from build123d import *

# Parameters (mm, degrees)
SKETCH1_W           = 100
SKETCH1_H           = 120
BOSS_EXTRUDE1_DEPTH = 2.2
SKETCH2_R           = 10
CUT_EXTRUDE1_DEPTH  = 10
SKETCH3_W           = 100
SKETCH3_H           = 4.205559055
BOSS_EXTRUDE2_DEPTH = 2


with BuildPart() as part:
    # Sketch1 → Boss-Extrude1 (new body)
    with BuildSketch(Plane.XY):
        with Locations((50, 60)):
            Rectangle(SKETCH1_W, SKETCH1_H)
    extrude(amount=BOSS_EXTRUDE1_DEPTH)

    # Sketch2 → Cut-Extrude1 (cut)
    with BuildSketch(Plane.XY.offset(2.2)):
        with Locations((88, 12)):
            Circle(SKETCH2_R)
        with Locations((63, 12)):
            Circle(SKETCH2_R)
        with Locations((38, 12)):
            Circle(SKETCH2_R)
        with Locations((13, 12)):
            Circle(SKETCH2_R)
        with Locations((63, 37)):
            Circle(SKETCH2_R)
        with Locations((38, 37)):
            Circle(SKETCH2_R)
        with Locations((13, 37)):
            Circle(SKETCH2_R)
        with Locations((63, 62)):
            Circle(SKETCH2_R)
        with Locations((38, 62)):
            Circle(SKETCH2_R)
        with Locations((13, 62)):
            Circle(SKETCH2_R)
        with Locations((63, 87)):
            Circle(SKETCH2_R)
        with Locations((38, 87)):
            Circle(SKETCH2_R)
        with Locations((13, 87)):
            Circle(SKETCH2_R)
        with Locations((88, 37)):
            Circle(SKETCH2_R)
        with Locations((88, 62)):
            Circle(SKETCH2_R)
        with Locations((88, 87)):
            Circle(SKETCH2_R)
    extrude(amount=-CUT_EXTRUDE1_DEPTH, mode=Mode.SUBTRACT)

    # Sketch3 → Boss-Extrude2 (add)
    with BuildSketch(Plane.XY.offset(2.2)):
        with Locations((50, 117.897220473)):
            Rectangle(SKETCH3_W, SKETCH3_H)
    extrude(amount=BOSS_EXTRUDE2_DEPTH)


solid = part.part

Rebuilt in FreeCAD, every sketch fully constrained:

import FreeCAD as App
import Part
import Sketcher

V = App.Vector

doc = App.newDocument("Part")
params = doc.addObject("Spreadsheet::Sheet", "Params")
for row, (alias, value) in enumerate([
    ("sketch1_width", "100 mm"),
    ("sketch1_height", "120 mm"),
    ("pad1_length", "2.2 mm"),
    ("sketch2_diameter", "20 mm"),
    ("pocket1_length", "10 mm"),
    ("sketch3_width", "100 mm"),
    ("pad2_length", "2 mm"),
], start=1):
    params.set(f"A{row}", alias)
    params.set(f"B{row}", "=" + value)
    params.setAlias(f"B{row}", alias)

body = doc.addObject("PartDesign::Body", "Body")

# Sketch on XY plane
sketch1 = doc.addObject("Sketcher::SketchObject", "Sketch")
body.addObject(sketch1)
sketch1.AttachmentSupport = (doc.XY_Plane, [""])
sketch1.MapMode = "FlatFace"
sketch1.addGeometry([
    Part.LineSegment(V(0, 120, 0), V(0, 0, 0)),
    Part.LineSegment(V(0, 0, 0), V(100, 0, 0)),
    Part.LineSegment(V(100, 0, 0), V(100, 120, 0)),
    Part.LineSegment(V(100, 120, 0), V(0, 120, 0)),
], False)
sketch1.addConstraint([
    Sketcher.Constraint("Coincident", 0, 2, 1, 1),
    Sketcher.Constraint("Coincident", 1, 2, 2, 1),
    Sketcher.Constraint("Coincident", 2, 2, 3, 1),
    Sketcher.Constraint("Coincident", 3, 2, 0, 1),
    Sketcher.Constraint("Vertical", 0),
    Sketcher.Constraint("Horizontal", 1),
    Sketcher.Constraint("Vertical", 2),
    Sketcher.Constraint("Horizontal", 3),
    Sketcher.Constraint("Coincident", 0, 2, -1, 1),
    Sketcher.Constraint("DistanceX", 1, 1, 1, 2, 100.0),
    Sketcher.Constraint("DistanceY", 0, 2, 0, 1, 120.0),
])
sketch1.setExpression("Constraints[9]", "Params.sketch1_width")
sketch1.setExpression("Constraints[10]", "Params.sketch1_height")
pad1 = doc.addObject("PartDesign::Pad", "Pad")
body.addObject(pad1)
pad1.Profile = sketch1
pad1.setExpression("Length", "Params.pad1_length")

# Sketch on XY plane
sketch2 = doc.addObject("Sketcher::SketchObject", "Sketch001")
body.addObject(sketch2)
sketch2.AttachmentSupport = (doc.XY_Plane, [""])
sketch2.MapMode = "FlatFace"
sketch2.AttachmentOffset = App.Placement(V(0, 0, 2.2), App.Rotation())
sketch2.addGeometry([
    Part.Circle(V(88, 12, 0), V(0, 0, 1), 10),  # 0
    Part.Circle(V(63, 12, 0), V(0, 0, 1), 10),  # 1
    Part.Circle(V(38, 12, 0), V(0, 0, 1), 10),  # 2
    Part.Circle(V(13, 12, 0), V(0, 0, 1), 10),  # 3
    Part.Circle(V(63, 37, 0), V(0, 0, 1), 10),  # 4
    Part.Circle(V(38, 37, 0), V(0, 0, 1), 10),  # 5
    Part.Circle(V(13, 37, 0), V(0, 0, 1), 10),  # 6
    Part.Circle(V(63, 62, 0), V(0, 0, 1), 10),  # 7
    Part.Circle(V(38, 62, 0), V(0, 0, 1), 10),  # 8
    Part.Circle(V(13, 62, 0), V(0, 0, 1), 10),  # 9
    Part.Circle(V(63, 87, 0), V(0, 0, 1), 10),  # 10
    Part.Circle(V(38, 87, 0), V(0, 0, 1), 10),  # 11
    Part.Circle(V(13, 87, 0), V(0, 0, 1), 10),  # 12
    Part.Circle(V(88, 37, 0), V(0, 0, 1), 10),  # 13
    Part.Circle(V(88, 62, 0), V(0, 0, 1), 10),  # 14
    Part.Circle(V(88, 87, 0), V(0, 0, 1), 10),  # 15
], False)
sketch2.addConstraint([
    Sketcher.Constraint("Equal", 0, 1),
    Sketcher.Constraint("Equal", 1, 2),
    Sketcher.Constraint("Equal", 2, 3),
    Sketcher.Constraint("Equal", 3, 4),
    Sketcher.Constraint("Equal", 4, 5),
    Sketcher.Constraint("Equal", 5, 6),
    Sketcher.Constraint("Equal", 6, 7),
    Sketcher.Constraint("Equal", 7, 8),
    Sketcher.Constraint("Equal", 8, 9),
    Sketcher.Constraint("Equal", 9, 10),
    Sketcher.Constraint("Equal", 10, 11),
    Sketcher.Constraint("Equal", 11, 12),
    Sketcher.Constraint("Equal", 12, 13),
    Sketcher.Constraint("Equal", 13, 14),
    Sketcher.Constraint("Equal", 14, 15),
    Sketcher.Constraint("Horizontal", 0, 3, 1, 3),
    Sketcher.Constraint("Horizontal", 1, 3, 2, 3),
    Sketcher.Constraint("Horizontal", 2, 3, 3, 3),
    Sketcher.Constraint("Horizontal", 4, 3, 5, 3),
    Sketcher.Constraint("Horizontal", 5, 3, 6, 3),
    Sketcher.Constraint("Horizontal", 7, 3, 8, 3),
    Sketcher.Constraint("Horizontal", 8, 3, 9, 3),
    Sketcher.Constraint("Horizontal", 10, 3, 11, 3),
    Sketcher.Constraint("Horizontal", 11, 3, 12, 3),
    Sketcher.Constraint("Horizontal", 6, 3, 13, 3),
    Sketcher.Constraint("Horizontal", 9, 3, 14, 3),
    Sketcher.Constraint("Horizontal", 12, 3, 15, 3),
    Sketcher.Constraint("Vertical", 1, 3, 4, 3),
    Sketcher.Constraint("Vertical", 2, 3, 5, 3),
    Sketcher.Constraint("Vertical", 3, 3, 6, 3),
    Sketcher.Constraint("Vertical", 4, 3, 7, 3),
    Sketcher.Constraint("Vertical", 5, 3, 8, 3),
    Sketcher.Constraint("Vertical", 6, 3, 9, 3),
    Sketcher.Constraint("Vertical", 7, 3, 10, 3),
    Sketcher.Constraint("Vertical", 8, 3, 11, 3),
    Sketcher.Constraint("Vertical", 9, 3, 12, 3),
    Sketcher.Constraint("Vertical", 0, 3, 13, 3),
    Sketcher.Constraint("Vertical", 13, 3, 14, 3),
    Sketcher.Constraint("Vertical", 14, 3, 15, 3),
    Sketcher.Constraint("Diameter", 0, 20.0),
    Sketcher.Constraint("DistanceX", -1, 1, 0, 3, 88.0),
    Sketcher.Constraint("DistanceY", -1, 1, 0, 3, 12.0),
    Sketcher.Constraint("DistanceX", -1, 1, 1, 3, 63.0),
    Sketcher.Constraint("DistanceX", -1, 1, 2, 3, 38.0),
    Sketcher.Constraint("DistanceX", -1, 1, 3, 3, 13.0),
    Sketcher.Constraint("DistanceY", -1, 1, 4, 3, 37.0),
    Sketcher.Constraint("DistanceY", -1, 1, 7, 3, 62.0),
    Sketcher.Constraint("DistanceY", -1, 1, 10, 3, 87.0),
])
sketch2.setExpression("Constraints[39]", "Params.sketch2_diameter")
pocket1 = doc.addObject("PartDesign::Pocket", "Pocket")
body.addObject(pocket1)
pocket1.Profile = sketch2
pocket1.setExpression("Length", "Params.pocket1_length")

# Sketch on XY plane
sketch3 = doc.addObject("Sketcher::SketchObject", "Sketch002")
body.addObject(sketch3)
sketch3.AttachmentSupport = (doc.XY_Plane, [""])
sketch3.MapMode = "FlatFace"
sketch3.AttachmentOffset = App.Placement(V(0, 0, 2.2), App.Rotation())
sketch3.addGeometry([
    Part.LineSegment(V(0, 120, 0), V(0, 115.8, 0)),
    Part.LineSegment(V(0, 115.8, 0), V(100, 115.8, 0)),
    Part.LineSegment(V(100, 115.8, 0), V(100, 120, 0)),
    Part.LineSegment(V(100, 120, 0), V(0, 120, 0)),
], False)
sketch3.addConstraint([
    Sketcher.Constraint("Coincident", 0, 2, 1, 1),
    Sketcher.Constraint("Coincident", 1, 2, 2, 1),
    Sketcher.Constraint("Coincident", 2, 2, 3, 1),
    Sketcher.Constraint("Coincident", 3, 2, 0, 1),
    Sketcher.Constraint("Vertical", 0),
    Sketcher.Constraint("Horizontal", 1),
    Sketcher.Constraint("Vertical", 2),
    Sketcher.Constraint("Horizontal", 3),
    Sketcher.Constraint("PointOnObject", 0, 2, -2),
    Sketcher.Constraint("DistanceX", 1, 1, 1, 2, 100.0),
    Sketcher.Constraint("DistanceY", -1, 1, 2, 2, 120.0),
    Sketcher.Constraint("DistanceY", 0, 2, 0, 1, 4.205559),
])
sketch3.setExpression("Constraints[9]", "Params.sketch3_width")
pad2 = doc.addObject("PartDesign::Pad", "Pad001")
body.addObject(pad2)
pad2.Profile = sketch3
pad2.setExpression("Length", "Params.pad2_length")

doc.recompute()
